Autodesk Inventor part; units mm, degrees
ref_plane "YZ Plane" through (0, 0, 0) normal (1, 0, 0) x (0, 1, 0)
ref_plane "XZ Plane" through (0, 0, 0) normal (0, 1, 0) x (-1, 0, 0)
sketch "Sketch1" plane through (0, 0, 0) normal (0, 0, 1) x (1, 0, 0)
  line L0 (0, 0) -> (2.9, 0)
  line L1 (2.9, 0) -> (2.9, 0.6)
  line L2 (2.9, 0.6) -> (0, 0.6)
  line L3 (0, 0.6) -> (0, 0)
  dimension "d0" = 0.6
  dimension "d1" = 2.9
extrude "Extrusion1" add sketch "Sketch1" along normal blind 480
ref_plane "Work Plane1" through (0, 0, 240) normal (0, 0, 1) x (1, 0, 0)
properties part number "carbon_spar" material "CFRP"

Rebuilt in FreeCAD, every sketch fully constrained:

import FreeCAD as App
import Part
import Sketcher

V = App.Vector
Q = App.Units.Quantity

doc = App.newDocument("Part")
body = doc.addObject("PartDesign::Body", "Body")

sketch1 = body.newObject("Sketcher::SketchObject", "Sketch")
sketch1.AttachmentSupport = (doc.getObject("XY_Plane"), [""])
sketch1.MapMode = "FlatFace"
sketch1.addGeometry([
    Part.LineSegment(V(0, 0.6, 0), V(0, 0, 0)),
    Part.LineSegment(V(0, 0, 0), V(2.9, 0, 0)),
    Part.LineSegment(V(2.9, 0, 0), V(2.9, 0.6, 0)),
    Part.LineSegment(V(2.9, 0.6, 0), V(0, 0.6, 0)),
], False)
sketch1.addConstraint([
    Sketcher.Constraint("Coincident", 0, 2, 1, 1),
    Sketcher.Constraint("Coincident", 1, 2, 2, 1),
    Sketcher.Constraint("Coincident", 2, 2, 3, 1),
    Sketcher.Constraint("Coincident", 3, 2, 0, 1),
    Sketcher.Constraint("Vertical", 0),
    Sketcher.Constraint("Horizontal", 1),
    Sketcher.Constraint("Vertical", 2),
    Sketcher.Constraint("Horizontal", 3),
    Sketcher.Constraint("Coincident", 0, 2, -1, 1),
    Sketcher.Constraint("DistanceX", 1, 1, 1, 2, Q("2.9 mm")),
    Sketcher.Constraint("DistanceY", 0, 2, 0, 1, Q("0.6 mm")),
])
pad1 = body.newObject("PartDesign::Pad", "Pad")
pad1.Profile = sketch1
pad1.Length = 480

doc.recompute()
